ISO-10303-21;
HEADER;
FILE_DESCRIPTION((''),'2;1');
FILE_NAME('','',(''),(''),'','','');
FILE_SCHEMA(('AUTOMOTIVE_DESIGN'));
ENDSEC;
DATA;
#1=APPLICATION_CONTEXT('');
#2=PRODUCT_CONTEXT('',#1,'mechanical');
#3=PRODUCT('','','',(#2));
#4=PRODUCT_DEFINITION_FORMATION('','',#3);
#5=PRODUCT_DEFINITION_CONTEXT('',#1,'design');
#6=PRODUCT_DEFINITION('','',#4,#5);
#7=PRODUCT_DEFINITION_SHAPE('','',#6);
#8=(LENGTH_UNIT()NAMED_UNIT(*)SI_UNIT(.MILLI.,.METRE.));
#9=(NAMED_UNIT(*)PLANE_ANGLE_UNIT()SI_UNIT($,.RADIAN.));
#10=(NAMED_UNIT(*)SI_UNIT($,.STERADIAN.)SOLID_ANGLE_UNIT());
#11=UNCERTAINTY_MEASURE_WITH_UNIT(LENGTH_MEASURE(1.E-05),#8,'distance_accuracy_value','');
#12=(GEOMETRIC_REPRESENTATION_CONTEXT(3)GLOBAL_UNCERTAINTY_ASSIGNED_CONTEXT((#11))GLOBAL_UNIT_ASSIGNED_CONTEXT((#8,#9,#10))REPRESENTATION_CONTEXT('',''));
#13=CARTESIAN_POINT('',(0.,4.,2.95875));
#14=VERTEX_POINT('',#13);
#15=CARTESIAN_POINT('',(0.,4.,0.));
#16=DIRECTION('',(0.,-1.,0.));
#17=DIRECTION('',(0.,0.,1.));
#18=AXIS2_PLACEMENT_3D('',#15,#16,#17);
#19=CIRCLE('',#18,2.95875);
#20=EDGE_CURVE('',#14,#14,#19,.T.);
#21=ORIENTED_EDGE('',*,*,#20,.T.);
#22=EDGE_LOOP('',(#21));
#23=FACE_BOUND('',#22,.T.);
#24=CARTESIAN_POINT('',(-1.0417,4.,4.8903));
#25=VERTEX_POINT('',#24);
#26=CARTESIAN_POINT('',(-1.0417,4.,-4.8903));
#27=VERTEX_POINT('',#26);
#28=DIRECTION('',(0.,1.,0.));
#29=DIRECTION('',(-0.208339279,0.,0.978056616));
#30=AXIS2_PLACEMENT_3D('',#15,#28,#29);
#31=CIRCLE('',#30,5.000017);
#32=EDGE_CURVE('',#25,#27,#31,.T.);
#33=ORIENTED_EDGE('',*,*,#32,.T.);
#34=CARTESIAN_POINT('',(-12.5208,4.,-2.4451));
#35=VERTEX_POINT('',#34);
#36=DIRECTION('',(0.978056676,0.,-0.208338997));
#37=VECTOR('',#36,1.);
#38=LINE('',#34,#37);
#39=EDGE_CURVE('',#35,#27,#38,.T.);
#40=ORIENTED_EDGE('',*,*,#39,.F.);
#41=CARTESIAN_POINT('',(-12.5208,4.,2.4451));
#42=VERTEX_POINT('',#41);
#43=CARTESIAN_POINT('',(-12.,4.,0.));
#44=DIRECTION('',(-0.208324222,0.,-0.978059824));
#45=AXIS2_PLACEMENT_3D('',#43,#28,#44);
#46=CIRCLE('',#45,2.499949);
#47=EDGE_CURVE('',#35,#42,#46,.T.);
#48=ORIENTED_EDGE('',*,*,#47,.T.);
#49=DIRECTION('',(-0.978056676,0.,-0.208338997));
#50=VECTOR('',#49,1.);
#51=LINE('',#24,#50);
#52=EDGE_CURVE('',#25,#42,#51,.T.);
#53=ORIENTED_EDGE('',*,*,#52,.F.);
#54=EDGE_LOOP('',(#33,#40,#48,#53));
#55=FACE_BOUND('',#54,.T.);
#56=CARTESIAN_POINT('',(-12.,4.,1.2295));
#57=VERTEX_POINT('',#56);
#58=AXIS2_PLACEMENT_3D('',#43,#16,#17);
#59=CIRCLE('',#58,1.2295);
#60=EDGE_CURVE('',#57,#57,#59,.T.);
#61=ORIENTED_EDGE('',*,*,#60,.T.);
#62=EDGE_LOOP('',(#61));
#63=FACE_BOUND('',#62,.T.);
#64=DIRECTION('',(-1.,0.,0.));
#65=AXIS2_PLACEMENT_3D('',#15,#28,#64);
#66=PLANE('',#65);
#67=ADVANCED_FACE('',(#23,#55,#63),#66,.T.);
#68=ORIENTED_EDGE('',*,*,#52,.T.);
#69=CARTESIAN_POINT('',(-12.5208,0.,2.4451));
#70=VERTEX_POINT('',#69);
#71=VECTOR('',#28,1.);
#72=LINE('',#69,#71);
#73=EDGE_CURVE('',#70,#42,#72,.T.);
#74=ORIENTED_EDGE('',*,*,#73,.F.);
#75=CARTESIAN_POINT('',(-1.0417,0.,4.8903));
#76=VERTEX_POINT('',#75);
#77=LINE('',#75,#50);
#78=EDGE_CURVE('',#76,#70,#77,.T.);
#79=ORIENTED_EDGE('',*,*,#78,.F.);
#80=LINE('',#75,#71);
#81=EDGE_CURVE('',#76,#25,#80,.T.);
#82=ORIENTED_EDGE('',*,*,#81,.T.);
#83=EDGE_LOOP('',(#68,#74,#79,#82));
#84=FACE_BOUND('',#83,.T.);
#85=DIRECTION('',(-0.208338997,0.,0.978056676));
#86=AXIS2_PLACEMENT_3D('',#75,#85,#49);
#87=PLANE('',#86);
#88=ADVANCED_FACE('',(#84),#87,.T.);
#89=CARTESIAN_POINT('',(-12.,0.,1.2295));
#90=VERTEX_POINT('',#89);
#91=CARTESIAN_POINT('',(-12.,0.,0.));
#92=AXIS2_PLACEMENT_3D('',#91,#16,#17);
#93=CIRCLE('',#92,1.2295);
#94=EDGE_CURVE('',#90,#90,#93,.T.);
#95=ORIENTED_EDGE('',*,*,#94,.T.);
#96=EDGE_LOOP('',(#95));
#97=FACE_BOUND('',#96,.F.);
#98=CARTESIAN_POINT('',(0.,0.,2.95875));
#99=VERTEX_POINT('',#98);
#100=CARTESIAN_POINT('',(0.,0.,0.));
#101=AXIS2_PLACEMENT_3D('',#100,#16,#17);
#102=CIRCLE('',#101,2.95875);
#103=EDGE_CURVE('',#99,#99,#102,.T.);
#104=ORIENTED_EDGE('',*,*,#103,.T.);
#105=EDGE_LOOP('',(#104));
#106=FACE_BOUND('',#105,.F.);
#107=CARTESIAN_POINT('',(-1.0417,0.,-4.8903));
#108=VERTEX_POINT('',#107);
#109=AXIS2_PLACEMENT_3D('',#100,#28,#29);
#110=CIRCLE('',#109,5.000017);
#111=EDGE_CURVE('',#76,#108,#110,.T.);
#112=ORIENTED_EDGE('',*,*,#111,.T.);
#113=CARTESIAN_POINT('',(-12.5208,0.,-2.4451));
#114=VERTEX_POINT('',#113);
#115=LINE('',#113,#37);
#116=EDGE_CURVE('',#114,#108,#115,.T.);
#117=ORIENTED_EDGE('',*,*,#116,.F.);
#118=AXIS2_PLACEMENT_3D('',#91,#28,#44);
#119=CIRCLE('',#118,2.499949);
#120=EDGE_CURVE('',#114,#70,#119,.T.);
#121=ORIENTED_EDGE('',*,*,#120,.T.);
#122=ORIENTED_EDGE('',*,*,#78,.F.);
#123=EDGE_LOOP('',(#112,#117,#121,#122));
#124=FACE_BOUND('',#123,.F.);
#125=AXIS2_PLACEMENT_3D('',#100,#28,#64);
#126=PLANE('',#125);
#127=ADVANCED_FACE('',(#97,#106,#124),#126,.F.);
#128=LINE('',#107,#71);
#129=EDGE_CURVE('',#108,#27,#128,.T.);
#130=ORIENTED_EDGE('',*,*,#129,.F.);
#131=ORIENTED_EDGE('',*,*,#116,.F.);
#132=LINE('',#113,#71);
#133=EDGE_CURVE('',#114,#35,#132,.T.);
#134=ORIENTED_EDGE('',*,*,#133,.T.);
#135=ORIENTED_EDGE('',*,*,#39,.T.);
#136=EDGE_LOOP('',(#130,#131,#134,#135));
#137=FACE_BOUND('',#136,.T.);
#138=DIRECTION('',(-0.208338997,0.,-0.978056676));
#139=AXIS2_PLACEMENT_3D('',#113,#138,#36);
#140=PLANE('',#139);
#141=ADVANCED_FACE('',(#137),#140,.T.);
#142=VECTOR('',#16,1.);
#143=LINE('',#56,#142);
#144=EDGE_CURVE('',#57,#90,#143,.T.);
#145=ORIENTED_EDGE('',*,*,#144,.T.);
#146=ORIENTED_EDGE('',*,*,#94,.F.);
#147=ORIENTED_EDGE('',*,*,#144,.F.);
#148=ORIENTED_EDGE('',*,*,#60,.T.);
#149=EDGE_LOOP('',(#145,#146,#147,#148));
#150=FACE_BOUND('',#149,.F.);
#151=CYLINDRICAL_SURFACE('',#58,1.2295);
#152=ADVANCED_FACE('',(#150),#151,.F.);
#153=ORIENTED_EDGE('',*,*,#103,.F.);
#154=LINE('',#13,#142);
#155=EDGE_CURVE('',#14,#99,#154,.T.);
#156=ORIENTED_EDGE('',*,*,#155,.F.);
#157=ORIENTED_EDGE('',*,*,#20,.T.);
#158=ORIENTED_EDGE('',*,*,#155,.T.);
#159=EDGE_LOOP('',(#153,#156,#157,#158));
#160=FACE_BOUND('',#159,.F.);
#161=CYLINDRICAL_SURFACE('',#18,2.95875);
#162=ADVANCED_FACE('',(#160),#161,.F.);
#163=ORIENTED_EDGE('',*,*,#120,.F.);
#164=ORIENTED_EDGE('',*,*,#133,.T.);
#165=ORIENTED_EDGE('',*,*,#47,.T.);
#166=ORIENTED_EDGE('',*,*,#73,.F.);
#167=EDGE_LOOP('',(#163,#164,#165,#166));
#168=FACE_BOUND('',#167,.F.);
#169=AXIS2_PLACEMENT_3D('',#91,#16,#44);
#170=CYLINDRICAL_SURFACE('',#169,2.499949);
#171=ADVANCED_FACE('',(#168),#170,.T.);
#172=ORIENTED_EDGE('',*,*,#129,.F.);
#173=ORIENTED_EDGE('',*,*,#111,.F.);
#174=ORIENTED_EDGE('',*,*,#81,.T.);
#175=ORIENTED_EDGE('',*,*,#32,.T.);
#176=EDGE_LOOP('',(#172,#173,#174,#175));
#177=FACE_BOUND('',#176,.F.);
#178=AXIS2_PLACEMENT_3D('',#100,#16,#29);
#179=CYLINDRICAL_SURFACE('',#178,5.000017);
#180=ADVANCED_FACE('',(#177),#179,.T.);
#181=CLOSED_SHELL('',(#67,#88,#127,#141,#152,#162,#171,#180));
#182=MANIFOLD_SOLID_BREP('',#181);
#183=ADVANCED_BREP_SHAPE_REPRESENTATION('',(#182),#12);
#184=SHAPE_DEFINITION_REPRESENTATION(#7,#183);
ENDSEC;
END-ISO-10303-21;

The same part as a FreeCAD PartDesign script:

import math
import FreeCAD as App
import Part
import Sketcher

doc = App.newDocument("Part")
body = doc.addObject("PartDesign::Body", "Body")

# Sketch on XZ plane
sketch1 = body.newObject("Sketcher::SketchObject", "Sketch")
sketch1.AttachmentSupport = (doc.getObject("XZ_Plane"), [""])
sketch1.MapMode = "FlatFace"
sketch1.addGeometry(Part.LineSegment(App.Vector(-1, -4.9, 0), App.Vector(-12.5, -2.4, 0)), False)
sketch1.addGeometry(Part.ArcOfCircle(Part.Circle(App.Vector(-12, 0, 0), App.Vector(0, 0, 1), 2.5), math.radians(102), math.radians(258)), False)
sketch1.addGeometry(Part.LineSegment(App.Vector(-12.5, 2.4, 0), App.Vector(-1, 4.9, 0)), False)
sketch1.addGeometry(Part.ArcOfCircle(Part.Circle(App.Vector(0, 0, 0), App.Vector(0, 0, 1), 5), math.radians(-102), math.radians(102)), False)
sketch1.addConstraint(Sketcher.Constraint("Tangent", 0, 2, 1, 2))
sketch1.addConstraint(Sketcher.Constraint("Tangent", 1, 1, 2, 1))
sketch1.addConstraint(Sketcher.Constraint("Tangent", 2, 2, 3, 2))
sketch1.addConstraint(Sketcher.Constraint("Tangent", 3, 1, 0, 1))
sketch1.addConstraint(Sketcher.Constraint("Coincident", 3, 3, -1, 1))
sketch1.addConstraint(Sketcher.Constraint("PointOnObject", 1, 3, -1))
sketch1.addConstraint(Sketcher.Constraint("Radius", 3, 5.0))
sketch1.addConstraint(Sketcher.Constraint("Radius", 1, 2.5))
sketch1.addConstraint(Sketcher.Constraint("DistanceX", 1, 3, -1, 1, 12.0))
pad1 = body.newObject("PartDesign::Pad", "Pad")
pad1.Profile = sketch1
pad1.Length = 4
pad1.Reversed = True

# Sketch on XZ plane
sketch2 = body.newObject("Sketcher::SketchObject", "Sketch001")
sketch2.AttachmentSupport = (doc.getObject("XZ_Plane"), [""])
sketch2.MapMode = "FlatFace"
sketch2.AttachmentOffset = App.Placement(App.Vector(0, 0, -4), App.Rotation())
sketch2.addGeometry(Part.Circle(App.Vector(-12, 0, 0), App.Vector(0, 0, 1), 1.2), False)
sketch2.addConstraint(Sketcher.Constraint("PointOnObject", 0, 3, -1))
sketch2.addConstraint(Sketcher.Constraint("Diameter", 0, 2.459))
sketch2.addConstraint(Sketcher.Constraint("DistanceX", 0, 3, -1, 1, 12.0))
doc.recompute()
hole = body.newObject("PartDesign::Hole", "Hole")
hole.Profile = sketch2
hole.ThreadType = "None"
hole.Diameter = 2.459
hole.DepthType = "ThroughAll"
hole.Reversed = True

# Sketch on XZ plane
sketch3 = body.newObject("Sketcher::SketchObject", "Sketch002")
sketch3.AttachmentSupport = (doc.getObject("XZ_Plane"), [""])
sketch3.MapMode = "FlatFace"
sketch3.AttachmentOffset = App.Placement(App.Vector(0, 0, -4), App.Rotation())
sketch3.addGeometry(Part.Circle(App.Vector(0, 0, 0), App.Vector(0, 0, 1), 3), False)
sketch3.addConstraint(Sketcher.Constraint("Coincident", 0, 3, -1, 1))
sketch3.addConstraint(Sketcher.Constraint("Diameter", 0, 5.9175))
doc.recompute()
hole2 = body.newObject("PartDesign::Hole", "Hole001")
hole2.Profile = sketch3
hole2.ThreadType = "None"
hole2.Diameter = 5.9175
hole2.DepthType = "ThroughAll"
hole2.Reversed = True

doc.recompute()
